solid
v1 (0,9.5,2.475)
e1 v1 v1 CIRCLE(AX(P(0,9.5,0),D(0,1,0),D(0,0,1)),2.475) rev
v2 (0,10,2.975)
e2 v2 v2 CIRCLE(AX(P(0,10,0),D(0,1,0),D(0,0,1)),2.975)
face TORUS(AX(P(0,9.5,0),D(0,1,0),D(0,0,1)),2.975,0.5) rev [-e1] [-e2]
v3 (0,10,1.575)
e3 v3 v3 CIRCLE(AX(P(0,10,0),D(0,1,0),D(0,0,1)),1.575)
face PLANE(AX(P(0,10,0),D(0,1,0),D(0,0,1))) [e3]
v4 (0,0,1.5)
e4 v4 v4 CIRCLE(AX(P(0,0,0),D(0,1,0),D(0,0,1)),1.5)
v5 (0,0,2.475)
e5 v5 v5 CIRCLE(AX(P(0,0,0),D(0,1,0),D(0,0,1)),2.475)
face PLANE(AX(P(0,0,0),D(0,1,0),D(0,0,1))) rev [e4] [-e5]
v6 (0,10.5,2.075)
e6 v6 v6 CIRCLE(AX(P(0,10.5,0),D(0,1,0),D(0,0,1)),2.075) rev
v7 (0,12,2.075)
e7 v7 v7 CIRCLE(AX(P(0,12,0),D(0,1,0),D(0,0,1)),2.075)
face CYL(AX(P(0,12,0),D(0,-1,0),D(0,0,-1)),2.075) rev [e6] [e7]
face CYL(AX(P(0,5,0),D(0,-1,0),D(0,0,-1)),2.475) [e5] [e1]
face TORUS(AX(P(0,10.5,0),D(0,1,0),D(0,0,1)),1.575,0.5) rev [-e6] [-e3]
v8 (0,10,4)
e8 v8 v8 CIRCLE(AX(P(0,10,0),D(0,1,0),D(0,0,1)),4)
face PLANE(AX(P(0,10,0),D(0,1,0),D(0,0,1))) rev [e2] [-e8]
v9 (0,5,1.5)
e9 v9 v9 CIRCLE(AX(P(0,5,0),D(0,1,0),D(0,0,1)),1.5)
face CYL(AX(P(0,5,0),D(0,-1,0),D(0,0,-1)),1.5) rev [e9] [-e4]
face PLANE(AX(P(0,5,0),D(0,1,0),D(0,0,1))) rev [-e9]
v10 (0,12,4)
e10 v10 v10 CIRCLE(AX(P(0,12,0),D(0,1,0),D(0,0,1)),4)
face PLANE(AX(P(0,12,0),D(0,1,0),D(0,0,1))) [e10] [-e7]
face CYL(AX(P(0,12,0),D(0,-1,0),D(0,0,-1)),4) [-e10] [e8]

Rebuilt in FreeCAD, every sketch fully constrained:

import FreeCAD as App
import Part
import Sketcher
from FreeCAD import Vector
Q = App.Units.Quantity


def edges_at(feature, points):
    """Names of the edges that pass closest to the given points."""
    edges = feature.Shape.Edges
    near = lambda p: min(range(len(edges)), key=lambda i: edges[i].distToShape(Part.Vertex(*p))[0])
    return sorted({f"Edge{near(p) + 1}" for p in points})

doc = App.newDocument("Part")
params = doc.addObject("Spreadsheet::Sheet", "Params")
for row, (alias, value) in enumerate([
    ("sketch1_diameter", "3 mm"),
    ("sketch1_diameter2", "4.95 mm"),
    ("pad1_length", "5 mm"),
    ("sketch2_diameter", "4.95 mm"),
    ("pad2_length", "5 mm"),
    ("sketch3_diameter", "8 mm"),
    ("sketch3_diameter2", "4.15 mm"),
    ("pad3_length", "2 mm"),
    ("fillet_radius", "0.5 mm"),
], start=1):
    params.set(f"A{row}", alias)
    params.set(f"B{row}", "=" + value)
    params.setAlias(f"B{row}", alias)

body = doc.addObject("PartDesign::Body", "Body")

# Sketch on XZ plane
sketch1 = body.newObject("Sketcher::SketchObject", "Sketch")
sketch1.AttachmentSupport = (doc.getObject("XZ_Plane"), [""])
sketch1.MapMode = "FlatFace"
sketch1.addGeometry([
    Part.Circle(Vector(0, 0, 0), Vector(0, 0, 1), 2.5),
    Part.Circle(Vector(0, 0, 0), Vector(0, 0, 1), 1.5),
], False)
sketch1.addConstraint([
    Sketcher.Constraint("Coincident", 0, 3, -1, 1),
    Sketcher.Constraint("Coincident", 1, 3, -1, 1),
    Sketcher.Constraint("Diameter", 1, Q("3 mm")),
    Sketcher.Constraint("Diameter", 0, Q("4.95 mm")),
])
sketch1.setExpression("Constraints[2]", "Params.sketch1_diameter")
sketch1.setExpression("Constraints[3]", "Params.sketch1_diameter2")
pad1 = body.newObject("PartDesign::Pad", "Pad")
pad1.Profile = sketch1
pad1.setExpression("Length", "Params.pad1_length")
pad1.Reversed = True

# Sketch on XZ plane
sketch2 = body.newObject("Sketcher::SketchObject", "Sketch001")
sketch2.AttachmentSupport = (doc.getObject("XZ_Plane"), [""])
sketch2.MapMode = "FlatFace"
sketch2.AttachmentOffset = App.Placement(Vector(0, 0, -5), App.Rotation())
sketch2.addGeometry(Part.Circle(Vector(0, 0, 0), Vector(0, 0, 1), 2.5), False)
sketch2.addConstraint([
    Sketcher.Constraint("Coincident", 0, 3, -1, 1),
    Sketcher.Constraint("Diameter", 0, Q("4.95 mm")),
])
sketch2.setExpression("Constraints[1]", "Params.sketch2_diameter")
pad2 = body.newObject("PartDesign::Pad", "Pad001")
pad2.Profile = sketch2
pad2.setExpression("Length", "Params.pad2_length")
pad2.Reversed = True

# Sketch on XZ plane
sketch3 = body.newObject("Sketcher::SketchObject", "Sketch002")
sketch3.AttachmentSupport = (doc.getObject("XZ_Plane"), [""])
sketch3.MapMode = "FlatFace"
sketch3.AttachmentOffset = App.Placement(Vector(0, 0, -10), App.Rotation())
sketch3.addGeometry([
    Part.Circle(Vector(0, 0, 0), Vector(0, 0, 1), 4),
    Part.Circle(Vector(0, 0, 0), Vector(0, 0, 1), 2.1),
], False)
sketch3.addConstraint([
    Sketcher.Constraint("Coincident", 0, 3, -1, 1),
    Sketcher.Constraint("Coincident", 1, 3, -1, 1),
    Sketcher.Constraint("Diameter", 0, Q("8 mm")),
    Sketcher.Constraint("Diameter", 1, Q("4.15 mm")),
])
sketch3.setExpression("Constraints[2]", "Params.sketch3_diameter")
sketch3.setExpression("Constraints[3]", "Params.sketch3_diameter2")
pad3 = body.newObject("PartDesign::Pad", "Pad002")
pad3.Profile = sketch3
pad3.setExpression("Length", "Params.pad3_length")
pad3.Reversed = True
doc.recompute()

fillet = body.newObject("PartDesign::Fillet", "Fillet")
fillet.Base = (pad3, edges_at(pad3, [(-2.475, 10, 0), (-2.075, 10, 0)]))
fillet.setExpression("Radius", "Params.fillet_radius")

doc.recompute()
